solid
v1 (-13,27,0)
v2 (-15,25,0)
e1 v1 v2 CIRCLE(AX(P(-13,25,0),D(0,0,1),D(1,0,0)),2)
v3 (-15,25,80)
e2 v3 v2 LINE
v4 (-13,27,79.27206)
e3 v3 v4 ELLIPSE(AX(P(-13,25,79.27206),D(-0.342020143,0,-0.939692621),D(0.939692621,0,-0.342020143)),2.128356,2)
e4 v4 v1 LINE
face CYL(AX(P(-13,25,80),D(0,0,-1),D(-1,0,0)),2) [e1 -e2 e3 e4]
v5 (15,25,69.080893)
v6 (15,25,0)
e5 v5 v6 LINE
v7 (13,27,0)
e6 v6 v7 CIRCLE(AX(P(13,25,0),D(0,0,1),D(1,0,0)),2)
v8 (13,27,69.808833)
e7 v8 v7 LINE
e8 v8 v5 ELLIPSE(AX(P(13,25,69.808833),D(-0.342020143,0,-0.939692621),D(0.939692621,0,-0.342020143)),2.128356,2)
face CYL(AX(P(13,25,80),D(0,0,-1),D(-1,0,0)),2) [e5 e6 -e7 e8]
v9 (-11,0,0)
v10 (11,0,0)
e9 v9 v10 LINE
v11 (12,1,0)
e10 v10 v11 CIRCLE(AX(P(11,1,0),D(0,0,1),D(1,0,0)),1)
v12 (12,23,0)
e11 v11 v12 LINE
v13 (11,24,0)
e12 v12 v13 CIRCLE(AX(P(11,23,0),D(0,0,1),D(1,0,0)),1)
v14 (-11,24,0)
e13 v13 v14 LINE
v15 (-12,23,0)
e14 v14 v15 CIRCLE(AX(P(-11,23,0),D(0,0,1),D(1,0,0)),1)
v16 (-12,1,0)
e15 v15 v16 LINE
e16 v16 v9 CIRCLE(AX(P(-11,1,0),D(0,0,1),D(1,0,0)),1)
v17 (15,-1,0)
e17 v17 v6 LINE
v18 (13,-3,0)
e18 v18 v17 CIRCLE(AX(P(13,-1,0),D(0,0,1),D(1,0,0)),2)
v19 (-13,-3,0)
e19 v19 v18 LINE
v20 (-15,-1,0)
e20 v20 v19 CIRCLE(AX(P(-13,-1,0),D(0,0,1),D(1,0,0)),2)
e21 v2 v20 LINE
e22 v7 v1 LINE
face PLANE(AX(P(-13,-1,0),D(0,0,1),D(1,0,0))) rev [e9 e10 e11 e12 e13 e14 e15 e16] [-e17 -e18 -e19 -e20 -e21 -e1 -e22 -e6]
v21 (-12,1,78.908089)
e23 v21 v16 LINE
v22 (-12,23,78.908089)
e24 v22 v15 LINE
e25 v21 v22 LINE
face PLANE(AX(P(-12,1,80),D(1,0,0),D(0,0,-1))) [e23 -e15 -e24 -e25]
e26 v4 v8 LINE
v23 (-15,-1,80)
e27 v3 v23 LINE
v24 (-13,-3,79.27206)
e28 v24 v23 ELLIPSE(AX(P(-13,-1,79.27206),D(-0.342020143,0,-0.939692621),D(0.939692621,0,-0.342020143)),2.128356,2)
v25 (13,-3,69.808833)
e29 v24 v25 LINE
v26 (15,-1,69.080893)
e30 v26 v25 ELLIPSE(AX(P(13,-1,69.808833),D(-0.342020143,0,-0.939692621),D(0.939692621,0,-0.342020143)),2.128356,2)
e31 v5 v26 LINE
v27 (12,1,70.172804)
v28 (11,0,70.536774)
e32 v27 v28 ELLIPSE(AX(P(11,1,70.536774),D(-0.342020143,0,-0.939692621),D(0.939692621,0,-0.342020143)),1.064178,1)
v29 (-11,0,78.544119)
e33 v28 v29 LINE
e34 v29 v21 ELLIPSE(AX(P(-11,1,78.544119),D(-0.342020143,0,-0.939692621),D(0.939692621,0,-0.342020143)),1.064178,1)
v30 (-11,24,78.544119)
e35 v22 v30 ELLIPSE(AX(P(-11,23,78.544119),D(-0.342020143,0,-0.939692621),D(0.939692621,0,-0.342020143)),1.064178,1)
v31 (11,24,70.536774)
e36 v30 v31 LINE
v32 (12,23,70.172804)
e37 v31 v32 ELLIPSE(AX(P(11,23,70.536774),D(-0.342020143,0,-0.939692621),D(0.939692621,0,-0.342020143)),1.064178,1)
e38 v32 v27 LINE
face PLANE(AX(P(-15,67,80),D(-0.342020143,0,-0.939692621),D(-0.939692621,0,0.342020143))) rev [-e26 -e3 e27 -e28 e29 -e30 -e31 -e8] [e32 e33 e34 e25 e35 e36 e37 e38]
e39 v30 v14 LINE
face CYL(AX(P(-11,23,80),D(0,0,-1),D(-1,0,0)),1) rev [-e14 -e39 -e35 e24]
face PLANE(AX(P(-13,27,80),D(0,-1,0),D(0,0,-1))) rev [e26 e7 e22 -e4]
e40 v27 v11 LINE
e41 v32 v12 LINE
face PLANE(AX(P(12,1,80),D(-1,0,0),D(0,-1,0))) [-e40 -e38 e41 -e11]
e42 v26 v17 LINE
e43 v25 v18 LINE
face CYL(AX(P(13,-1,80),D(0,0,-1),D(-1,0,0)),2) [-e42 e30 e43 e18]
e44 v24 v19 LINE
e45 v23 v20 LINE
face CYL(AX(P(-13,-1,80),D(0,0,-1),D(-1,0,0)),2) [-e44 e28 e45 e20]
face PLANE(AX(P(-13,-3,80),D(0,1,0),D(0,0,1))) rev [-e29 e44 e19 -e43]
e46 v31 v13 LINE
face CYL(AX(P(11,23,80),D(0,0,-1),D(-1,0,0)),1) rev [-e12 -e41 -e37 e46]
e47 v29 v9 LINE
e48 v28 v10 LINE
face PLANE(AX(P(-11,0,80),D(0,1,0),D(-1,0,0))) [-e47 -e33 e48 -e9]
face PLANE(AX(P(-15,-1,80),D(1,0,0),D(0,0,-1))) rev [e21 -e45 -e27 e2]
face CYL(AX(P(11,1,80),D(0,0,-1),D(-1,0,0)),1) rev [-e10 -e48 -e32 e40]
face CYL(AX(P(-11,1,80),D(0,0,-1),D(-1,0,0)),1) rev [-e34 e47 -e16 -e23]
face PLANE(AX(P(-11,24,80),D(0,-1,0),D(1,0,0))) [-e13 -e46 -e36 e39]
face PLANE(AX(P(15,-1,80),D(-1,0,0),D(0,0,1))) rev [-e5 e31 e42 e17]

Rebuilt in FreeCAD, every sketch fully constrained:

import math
import FreeCAD as App
import Part
import Sketcher
Q = App.Units.Quantity

doc = App.newDocument("Part")
body = doc.addObject("PartDesign::Body", "Body")

# Sketch on XY plane
sketch1 = doc.addObject("Sketcher::SketchObject", "Sketch")
body.addObject(sketch1)
sketch1.AttachmentSupport = (doc.XY_Plane, [""])
sketch1.MapMode = "FlatFace"
sketch1.addGeometry([
    Part.LineSegment(App.Vector(-13, -3, 0), App.Vector(13, -3, 0)),  # 0
    Part.ArcOfCircle(Part.Circle(App.Vector(13, -1, 0), App.Vector(0, 0, 1), 2), math.radians(-90), math.radians(0)),  # 1
    Part.LineSegment(App.Vector(15, -1, 0), App.Vector(15, 25, 0)),  # 2
    Part.ArcOfCircle(Part.Circle(App.Vector(13, 25, 0), App.Vector(0, 0, 1), 2), math.radians(0), math.radians(90)),  # 3
    Part.LineSegment(App.Vector(13, 27, 0), App.Vector(-13, 27, 0)),  # 4
    Part.ArcOfCircle(Part.Circle(App.Vector(-13, 25, 0), App.Vector(0, 0, 1), 2), math.radians(90), math.radians(180)),  # 5
    Part.LineSegment(App.Vector(-15, 25, 0), App.Vector(-15, -1, 0)),  # 6
    Part.ArcOfCircle(Part.Circle(App.Vector(-13, -1, 0), App.Vector(0, 0, 1), 2), math.radians(-180), math.radians(-90)),  # 7
    Part.LineSegment(App.Vector(11, 0, 0), App.Vector(-11, 0, 0)),  # 8
    Part.ArcOfCircle(Part.Circle(App.Vector(-11, 1, 0), App.Vector(0, 0, 1), 1), math.radians(-180), math.radians(-90)),  # 9
    Part.LineSegment(App.Vector(-12, 1, 0), App.Vector(-12, 23, 0)),  # 10
    Part.ArcOfCircle(Part.Circle(App.Vector(-11, 23, 0), App.Vector(0, 0, 1), 1), math.radians(90), math.radians(180)),  # 11
    Part.LineSegment(App.Vector(-11, 24, 0), App.Vector(11, 24, 0)),  # 12
    Part.ArcOfCircle(Part.Circle(App.Vector(11, 23, 0), App.Vector(0, 0, 1), 1), math.radians(0), math.radians(90)),  # 13
    Part.LineSegment(App.Vector(12, 23, 0), App.Vector(12, 1, 0)),  # 14
    Part.ArcOfCircle(Part.Circle(App.Vector(11, 1, 0), App.Vector(0, 0, 1), 1), math.radians(-90), math.radians(0)),  # 15
], False)
sketch1.addConstraint([
    Sketcher.Constraint("Tangent", 0, 2, 1, 1),
    Sketcher.Constraint("Tangent", 1, 2, 2, 1),
    Sketcher.Constraint("Tangent", 2, 2, 3, 1),
    Sketcher.Constraint("Tangent", 3, 2, 4, 1),
    Sketcher.Constraint("Tangent", 4, 2, 5, 1),
    Sketcher.Constraint("Tangent", 5, 2, 6, 1),
    Sketcher.Constraint("Tangent", 6, 2, 7, 1),
    Sketcher.Constraint("Tangent", 7, 2, 0, 1),
    Sketcher.Constraint("Tangent", 8, 2, 9, 2),
    Sketcher.Constraint("Tangent", 9, 1, 10, 1),
    Sketcher.Constraint("Tangent", 10, 2, 11, 2),
    Sketcher.Constraint("Tangent", 11, 1, 12, 1),
    Sketcher.Constraint("Tangent", 12, 2, 13, 2),
    Sketcher.Constraint("Tangent", 13, 1, 14, 1),
    Sketcher.Constraint("Tangent", 14, 2, 15, 2),
    Sketcher.Constraint("Tangent", 15, 1, 8, 1),
    Sketcher.Constraint("Horizontal", 0),
    Sketcher.Constraint("Vertical", 2),
    Sketcher.Constraint("Horizontal", 4),
    Sketcher.Constraint("Vertical", 6),
    Sketcher.Constraint("Horizontal", 8),
    Sketcher.Constraint("Vertical", 10),
    Sketcher.Constraint("Horizontal", 12),
    Sketcher.Constraint("Vertical", 14),
    Sketcher.Constraint("Equal", 1, 3),
    Sketcher.Constraint("Equal", 3, 5),
    Sketcher.Constraint("Equal", 5, 7),
    Sketcher.Constraint("Equal", 9, 11),
    Sketcher.Constraint("Equal", 11, 13),
    Sketcher.Constraint("Equal", 13, 15),
    Sketcher.Constraint("Symmetric", 8, 2, 15, 1, -1, 1),
    Sketcher.Constraint("Equal", 4, 2),
    Sketcher.Constraint("Equal", 12, 10),
    Sketcher.Constraint("Radius", 1, Q("2 mm")),
    Sketcher.Constraint("Radius", 9, Q("1 mm")),
    Sketcher.Constraint("DistanceX", 0, 1, 0, 2, Q("26 mm")),
    Sketcher.Constraint("DistanceX", 8, 2, 8, 1, Q("22 mm")),
    Sketcher.Constraint("DistanceX", -1, 1, 1, 3, Q("13 mm")),
    Sketcher.Constraint("DistanceY", 1, 3, -1, 1, Q("1 mm")),
])
pad1 = doc.addObject("PartDesign::Pad", "Pad")
body.addObject(pad1)
pad1.Profile = sketch1
pad1.Length = 80

# Sketch on XZ plane
sketch2 = doc.addObject("Sketcher::SketchObject", "Sketch001")
body.addObject(sketch2)
sketch2.AttachmentSupport = (doc.XZ_Plane, [""])
sketch2.MapMode = "FlatFace"
sketch2.AttachmentOffset = App.Placement(App.Vector(0, 0, 3), App.Rotation())
sketch2.addGeometry([
    Part.LineSegment(App.Vector(-15, 80, 0), App.Vector(64, 51, 0)),
    Part.LineSegment(App.Vector(64, 51, 0), App.Vector(64, 80, 0)),
    Part.LineSegment(App.Vector(64, 80, 0), App.Vector(-15, 80, 0)),
], False)
sketch2.addConstraint([
    Sketcher.Constraint("Coincident", 0, 2, 1, 1),
    Sketcher.Constraint("Coincident", 1, 2, 2, 1),
    Sketcher.Constraint("Coincident", 2, 2, 0, 1),
    Sketcher.Constraint("Vertical", 1),
    Sketcher.Constraint("Horizontal", 2),
    Sketcher.Constraint("Angle", 0, Q("-20 deg")),
    Sketcher.Constraint("DistanceY", -1, 1, 1, 2, Q("80 mm")),
    Sketcher.Constraint("DistanceX", 2, 2, -1, 1, Q("15 mm")),
    Sketcher.Constraint("DistanceX", 2, 2, 2, 1, Q("78.522311 mm")),
])
pocket1 = doc.addObject("PartDesign::Pocket", "Pocket")
body.addObject(pocket1)
pocket1.Profile = sketch2
pocket1.Length = 70

doc.recompute()
